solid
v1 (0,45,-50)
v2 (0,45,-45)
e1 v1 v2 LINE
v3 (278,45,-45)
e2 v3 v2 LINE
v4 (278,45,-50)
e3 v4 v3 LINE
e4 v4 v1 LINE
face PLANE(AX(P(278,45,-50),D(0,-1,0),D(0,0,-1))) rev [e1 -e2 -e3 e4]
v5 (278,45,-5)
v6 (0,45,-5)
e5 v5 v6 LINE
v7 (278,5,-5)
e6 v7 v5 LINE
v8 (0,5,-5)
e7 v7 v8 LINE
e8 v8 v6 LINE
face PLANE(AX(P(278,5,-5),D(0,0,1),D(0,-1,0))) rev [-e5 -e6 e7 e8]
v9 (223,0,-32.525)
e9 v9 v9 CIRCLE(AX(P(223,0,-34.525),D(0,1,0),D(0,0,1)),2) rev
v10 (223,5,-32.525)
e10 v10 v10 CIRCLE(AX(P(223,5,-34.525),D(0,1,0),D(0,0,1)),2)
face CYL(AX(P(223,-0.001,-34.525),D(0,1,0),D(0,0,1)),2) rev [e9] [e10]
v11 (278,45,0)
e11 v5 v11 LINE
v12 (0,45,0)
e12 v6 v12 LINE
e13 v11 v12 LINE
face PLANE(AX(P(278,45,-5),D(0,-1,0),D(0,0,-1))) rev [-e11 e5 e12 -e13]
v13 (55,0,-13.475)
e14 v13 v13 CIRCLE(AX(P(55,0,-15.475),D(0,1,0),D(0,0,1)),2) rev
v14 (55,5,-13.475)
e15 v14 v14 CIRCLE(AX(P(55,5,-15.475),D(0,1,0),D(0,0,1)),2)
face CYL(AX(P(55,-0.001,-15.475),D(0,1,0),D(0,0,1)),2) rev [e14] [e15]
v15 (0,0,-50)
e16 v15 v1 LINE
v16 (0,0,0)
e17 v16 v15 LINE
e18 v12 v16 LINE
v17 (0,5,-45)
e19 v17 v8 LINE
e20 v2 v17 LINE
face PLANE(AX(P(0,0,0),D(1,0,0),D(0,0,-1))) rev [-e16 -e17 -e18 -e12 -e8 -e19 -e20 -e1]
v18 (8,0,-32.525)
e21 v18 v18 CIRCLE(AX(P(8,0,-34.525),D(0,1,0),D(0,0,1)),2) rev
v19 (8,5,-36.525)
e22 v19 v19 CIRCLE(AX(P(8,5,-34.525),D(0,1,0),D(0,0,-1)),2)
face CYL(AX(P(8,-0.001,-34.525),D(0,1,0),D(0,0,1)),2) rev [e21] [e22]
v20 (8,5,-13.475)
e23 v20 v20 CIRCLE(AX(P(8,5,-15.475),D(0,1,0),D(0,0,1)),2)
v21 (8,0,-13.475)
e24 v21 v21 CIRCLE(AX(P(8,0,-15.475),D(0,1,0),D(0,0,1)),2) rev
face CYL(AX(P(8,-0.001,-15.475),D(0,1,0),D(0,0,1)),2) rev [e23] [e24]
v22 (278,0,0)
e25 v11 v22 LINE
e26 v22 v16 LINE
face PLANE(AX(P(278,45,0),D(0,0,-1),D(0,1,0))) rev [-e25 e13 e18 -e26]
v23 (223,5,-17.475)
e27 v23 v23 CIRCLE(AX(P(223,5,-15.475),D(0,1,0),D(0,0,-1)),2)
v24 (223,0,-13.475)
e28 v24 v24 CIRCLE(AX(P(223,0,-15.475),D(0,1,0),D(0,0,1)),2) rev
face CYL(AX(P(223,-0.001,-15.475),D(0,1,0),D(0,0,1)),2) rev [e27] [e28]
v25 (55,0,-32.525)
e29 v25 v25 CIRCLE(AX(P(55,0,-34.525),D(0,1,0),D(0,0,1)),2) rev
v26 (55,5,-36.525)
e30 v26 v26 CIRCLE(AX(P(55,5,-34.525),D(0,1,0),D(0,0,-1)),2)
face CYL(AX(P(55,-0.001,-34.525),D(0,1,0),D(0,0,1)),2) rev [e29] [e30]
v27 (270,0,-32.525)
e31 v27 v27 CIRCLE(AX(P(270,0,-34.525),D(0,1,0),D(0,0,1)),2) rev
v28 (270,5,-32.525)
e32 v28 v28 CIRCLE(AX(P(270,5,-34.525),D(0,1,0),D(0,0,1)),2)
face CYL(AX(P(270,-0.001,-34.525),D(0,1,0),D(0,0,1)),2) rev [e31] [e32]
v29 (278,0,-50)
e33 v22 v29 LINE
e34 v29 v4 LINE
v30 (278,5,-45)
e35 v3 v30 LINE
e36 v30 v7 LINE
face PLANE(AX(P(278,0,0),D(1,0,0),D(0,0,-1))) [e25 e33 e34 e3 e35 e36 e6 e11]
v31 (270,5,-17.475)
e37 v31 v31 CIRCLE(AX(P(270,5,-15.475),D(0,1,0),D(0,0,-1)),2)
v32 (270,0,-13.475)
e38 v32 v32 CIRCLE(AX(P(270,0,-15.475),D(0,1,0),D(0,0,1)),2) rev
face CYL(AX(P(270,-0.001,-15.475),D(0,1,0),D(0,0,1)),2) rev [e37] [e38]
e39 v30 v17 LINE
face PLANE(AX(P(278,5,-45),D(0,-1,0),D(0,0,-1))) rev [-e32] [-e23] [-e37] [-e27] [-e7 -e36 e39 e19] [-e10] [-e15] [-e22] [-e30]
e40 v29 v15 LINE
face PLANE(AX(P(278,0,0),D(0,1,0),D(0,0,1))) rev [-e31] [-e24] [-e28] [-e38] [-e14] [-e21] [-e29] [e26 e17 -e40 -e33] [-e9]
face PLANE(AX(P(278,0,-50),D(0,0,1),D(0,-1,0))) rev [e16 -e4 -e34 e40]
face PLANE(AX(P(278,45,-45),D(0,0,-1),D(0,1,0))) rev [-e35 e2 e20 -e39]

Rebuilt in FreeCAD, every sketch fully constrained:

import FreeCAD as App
import Part
import Sketcher

V = App.Vector
Q = App.Units.Quantity


def add_polygon(sketch, points):
    """Adds a closed chain of lines whose ends are joined by coincident constraints."""
    first, n = sketch.GeometryCount, len(points)
    for a, b in zip(points, points[1:] + points[:1]):
        sketch.addGeometry(Part.LineSegment(App.Vector(*a, 0), App.Vector(*b, 0)), False)
    for i in range(n):
        sketch.addConstraint(Sketcher.Constraint("Coincident", first + i, 2, first + (i + 1) % n, 1))

doc = App.newDocument("Part")
params = doc.addObject("Spreadsheet::Sheet", "Params")
for row, (alias, value) in enumerate([
    ("sketch1_width", "45 mm"),
    ("sketch1_width2", "40 mm"),
    ("sketch1_height", "50 mm"),
    ("pad1_length", "278 mm"),
    ("sketch2_diameter", "4 mm"),
    ("sketch3_diameter", "4 mm"),
    ("sketch4_diameter", "4 mm"),
    ("sketch5_diameter", "4 mm"),
    ("sketch6_diameter", "4 mm"),
    ("sketch7_diameter", "4 mm"),
    ("sketch8_diameter", "4 mm"),
    ("sketch9_diameter", "4 mm"),
], start=1):
    params.set(f"A{row}", alias)
    params.set(f"B{row}", "=" + value)
    params.setAlias(f"B{row}", alias)

body = doc.addObject("PartDesign::Body", "Body")

sketch1 = doc.addObject("Sketcher::SketchObject", "Sketch")
body.addObject(sketch1)
sketch1.AttachmentSupport = (doc.YZ_Plane, [""])
sketch1.MapMode = "FlatFace"
add_polygon(sketch1, [(0, 0), (0, -50), (45, -50), (45, -45), (5, -45), (5, -5), (45, -5), (45, 0)])
sketch1.addConstraint([
    Sketcher.Constraint("Vertical", 0),
    Sketcher.Constraint("Horizontal", 1),
    Sketcher.Constraint("Vertical", 2),
    Sketcher.Constraint("Horizontal", 3),
    Sketcher.Constraint("Vertical", 4),
    Sketcher.Constraint("Horizontal", 5),
    Sketcher.Constraint("Vertical", 6),
    Sketcher.Constraint("Horizontal", 7),
    Sketcher.Constraint("Coincident", 7, 2, -1, 1),
    Sketcher.Constraint("Vertical", 2, 2, 5, 2),
    Sketcher.Constraint("Equal", 5, 4),
    Sketcher.Constraint("Equal", 2, 6),
    Sketcher.Constraint("DistanceX", 1, 1, 1, 2, Q("45 mm")),
    Sketcher.Constraint("DistanceX", 3, 2, 3, 1, Q("40 mm")),
    Sketcher.Constraint("DistanceY", 0, 2, 0, 1, Q("50 mm")),
])
sketch1.setExpression("Constraints[20]", "Params.sketch1_width")
sketch1.setExpression("Constraints[21]", "Params.sketch1_width2")
sketch1.setExpression("Constraints[22]", "Params.sketch1_height")
pad1 = doc.addObject("PartDesign::Pad", "Pad")
body.addObject(pad1)
pad1.Profile = sketch1
pad1.setExpression("Length", "Params.pad1_length")

sketch2 = doc.addObject("Sketcher::SketchObject", "Sketch001")
body.addObject(sketch2)
sketch2.AttachmentSupport = (doc.XZ_Plane, [""])
sketch2.MapMode = "FlatFace"
sketch2.AttachmentOffset = App.Placement(V(0, 0, -5), App.Rotation())
sketch2.addGeometry(Part.Circle(V(8, -15.5, 0), V(0, 0, 1), 2), False)
sketch2.addConstraint([
    Sketcher.Constraint("Diameter", 0, Q("4 mm")),
    Sketcher.Constraint("DistanceX", -1, 1, 0, 3, Q("8 mm")),
    Sketcher.Constraint("DistanceY", 0, 3, -1, 1, Q("15.475 mm")),
])
sketch2.setExpression("Constraints[0]", "Params.sketch2_diameter")
pocket1 = doc.addObject("PartDesign::Pocket", "Pocket")
body.addObject(pocket1)
pocket1.Profile = sketch2
pocket1.Type = "UpToFirst"
pocket1.Reversed = True

sketch3 = doc.addObject("Sketcher::SketchObject", "Sketch002")
body.addObject(sketch3)
sketch3.AttachmentSupport = (doc.XZ_Plane, [""])
sketch3.MapMode = "FlatFace"
sketch3.AttachmentOffset = App.Placement(V(0, 0, -5), App.Rotation())
sketch3.addGeometry(Part.Circle(V(55, -15.5, 0), V(0, 0, 1), 2), False)
sketch3.addConstraint([
    Sketcher.Constraint("Diameter", 0, Q("4 mm")),
    Sketcher.Constraint("DistanceX", -1, 1, 0, 3, Q("55 mm")),
    Sketcher.Constraint("DistanceY", 0, 3, -1, 1, Q("15.475 mm")),
])
sketch3.setExpression("Constraints[0]", "Params.sketch3_diameter")
pocket2 = doc.addObject("PartDesign::Pocket", "Pocket001")
body.addObject(pocket2)
pocket2.Profile = sketch3
pocket2.Type = "UpToFirst"
pocket2.Reversed = True

sketch4 = doc.addObject("Sketcher::SketchObject", "Sketch003")
body.addObject(sketch4)
sketch4.AttachmentSupport = (doc.XZ_Plane, [""])
sketch4.MapMode = "FlatFace"
sketch4.AttachmentOffset = App.Placement(V(0, 0, -5), App.Rotation())
sketch4.addGeometry(Part.Circle(V(55, -34.5, 0), V(0, 0, 1), 2), False)
sketch4.addConstraint([
    Sketcher.Constraint("Diameter", 0, Q("4 mm")),
    Sketcher.Constraint("DistanceX", -1, 1, 0, 3, Q("55 mm")),
    Sketcher.Constraint("DistanceY", 0, 3, -1, 1, Q("34.525 mm")),
])
sketch4.setExpression("Constraints[0]", "Params.sketch4_diameter")
pocket3 = doc.addObject("PartDesign::Pocket", "Pocket002")
body.addObject(pocket3)
pocket3.Profile = sketch4
pocket3.Type = "UpToFirst"
pocket3.Reversed = True

sketch5 = doc.addObject("Sketcher::SketchObject", "Sketch004")
body.addObject(sketch5)
sketch5.AttachmentSupport = (doc.XZ_Plane, [""])
sketch5.MapMode = "FlatFace"
sketch5.AttachmentOffset = App.Placement(V(0, 0, -5), App.Rotation())
sketch5.addGeometry(Part.Circle(V(8, -34.5, 0), V(0, 0, 1), 2), False)
sketch5.addConstraint([
    Sketcher.Constraint("Diameter", 0, Q("4 mm")),
    Sketcher.Constraint("DistanceX", -1, 1, 0, 3, Q("8 mm")),
    Sketcher.Constraint("DistanceY", 0, 3, -1, 1, Q("34.525 mm")),
])
sketch5.setExpression("Constraints[0]", "Params.sketch5_diameter")
pocket4 = doc.addObject("PartDesign::Pocket", "Pocket003")
body.addObject(pocket4)
pocket4.Profile = sketch5
pocket4.Type = "UpToFirst"
pocket4.Reversed = True

sketch6 = doc.addObject("Sketcher::SketchObject", "Sketch005")
body.addObject(sketch6)
sketch6.AttachmentSupport = (doc.XZ_Plane, [""])
sketch6.MapMode = "FlatFace"
sketch6.AttachmentOffset = App.Placement(V(0, 0, -5), App.Rotation())
sketch6.addGeometry(Part.Circle(V(270, -34.5, 0), V(0, 0, 1), 2), False)
sketch6.addConstraint([
    Sketcher.Constraint("Diameter", 0, Q("4 mm")),
    Sketcher.Constraint("DistanceX", -1, 1, 0, 3, Q("270 mm")),
    Sketcher.Constraint("DistanceY", 0, 3, -1, 1, Q("34.525 mm")),
])
sketch6.setExpression("Constraints[0]", "Params.sketch6_diameter")
pocket5 = doc.addObject("PartDesign::Pocket", "Pocket004")
body.addObject(pocket5)
pocket5.Profile = sketch6
pocket5.Type = "UpToFirst"
pocket5.Reversed = True

sketch7 = doc.addObject("Sketcher::SketchObject", "Sketch006")
body.addObject(sketch7)
sketch7.AttachmentSupport = (doc.XZ_Plane, [""])
sketch7.MapMode = "FlatFace"
sketch7.AttachmentOffset = App.Placement(V(0, 0, -5), App.Rotation())
sketch7.addGeometry(Part.Circle(V(223, -34.5, 0), V(0, 0, 1), 2), False)
sketch7.addConstraint([
    Sketcher.Constraint("Diameter", 0, Q("4 mm")),
    Sketcher.Constraint("DistanceX", -1, 1, 0, 3, Q("223 mm")),
    Sketcher.Constraint("DistanceY", 0, 3, -1, 1, Q("34.525 mm")),
])
sketch7.setExpression("Constraints[0]", "Params.sketch7_diameter")
pocket6 = doc.addObject("PartDesign::Pocket", "Pocket005")
body.addObject(pocket6)
pocket6.Profile = sketch7
pocket6.Type = "UpToFirst"
pocket6.Reversed = True

sketch8 = doc.addObject("Sketcher::SketchObject", "Sketch007")
body.addObject(sketch8)
sketch8.AttachmentSupport = (doc.XZ_Plane, [""])
sketch8.MapMode = "FlatFace"
sketch8.AttachmentOffset = App.Placement(V(0, 0, -5), App.Rotation())
sketch8.addGeometry(Part.Circle(V(223, -15.5, 0), V(0, 0, 1), 2), False)
sketch8.addConstraint([
    Sketcher.Constraint("Diameter", 0, Q("4 mm")),
    Sketcher.Constraint("DistanceX", -1, 1, 0, 3, Q("223 mm")),
    Sketcher.Constraint("DistanceY", 0, 3, -1, 1, Q("15.475 mm")),
])
sketch8.setExpression("Constraints[0]", "Params.sketch8_diameter")
pocket7 = doc.addObject("PartDesign::Pocket", "Pocket006")
body.addObject(pocket7)
pocket7.Profile = sketch8
pocket7.Type = "UpToFirst"
pocket7.Reversed = True

sketch9 = doc.addObject("Sketcher::SketchObject", "Sketch008")
body.addObject(sketch9)
sketch9.AttachmentSupport = (doc.XZ_Plane, [""])
sketch9.MapMode = "FlatFace"
sketch9.AttachmentOffset = App.Placement(V(0, 0, -5), App.Rotation())
sketch9.addGeometry(Part.Circle(V(270, -15.5, 0), V(0, 0, 1), 2), False)
sketch9.addConstraint([
    Sketcher.Constraint("Diameter", 0, Q("4 mm")),
    Sketcher.Constraint("DistanceX", -1, 1, 0, 3, Q("270 mm")),
    Sketcher.Constraint("DistanceY", 0, 3, -1, 1, Q("15.475 mm")),
])
sketch9.setExpression("Constraints[0]", "Params.sketch9_diameter")
pocket8 = doc.addObject("PartDesign::Pocket", "Pocket007")
body.addObject(pocket8)
pocket8.Profile = sketch9
pocket8.Type = "UpToFirst"
pocket8.Reversed = True

doc.recompute()
